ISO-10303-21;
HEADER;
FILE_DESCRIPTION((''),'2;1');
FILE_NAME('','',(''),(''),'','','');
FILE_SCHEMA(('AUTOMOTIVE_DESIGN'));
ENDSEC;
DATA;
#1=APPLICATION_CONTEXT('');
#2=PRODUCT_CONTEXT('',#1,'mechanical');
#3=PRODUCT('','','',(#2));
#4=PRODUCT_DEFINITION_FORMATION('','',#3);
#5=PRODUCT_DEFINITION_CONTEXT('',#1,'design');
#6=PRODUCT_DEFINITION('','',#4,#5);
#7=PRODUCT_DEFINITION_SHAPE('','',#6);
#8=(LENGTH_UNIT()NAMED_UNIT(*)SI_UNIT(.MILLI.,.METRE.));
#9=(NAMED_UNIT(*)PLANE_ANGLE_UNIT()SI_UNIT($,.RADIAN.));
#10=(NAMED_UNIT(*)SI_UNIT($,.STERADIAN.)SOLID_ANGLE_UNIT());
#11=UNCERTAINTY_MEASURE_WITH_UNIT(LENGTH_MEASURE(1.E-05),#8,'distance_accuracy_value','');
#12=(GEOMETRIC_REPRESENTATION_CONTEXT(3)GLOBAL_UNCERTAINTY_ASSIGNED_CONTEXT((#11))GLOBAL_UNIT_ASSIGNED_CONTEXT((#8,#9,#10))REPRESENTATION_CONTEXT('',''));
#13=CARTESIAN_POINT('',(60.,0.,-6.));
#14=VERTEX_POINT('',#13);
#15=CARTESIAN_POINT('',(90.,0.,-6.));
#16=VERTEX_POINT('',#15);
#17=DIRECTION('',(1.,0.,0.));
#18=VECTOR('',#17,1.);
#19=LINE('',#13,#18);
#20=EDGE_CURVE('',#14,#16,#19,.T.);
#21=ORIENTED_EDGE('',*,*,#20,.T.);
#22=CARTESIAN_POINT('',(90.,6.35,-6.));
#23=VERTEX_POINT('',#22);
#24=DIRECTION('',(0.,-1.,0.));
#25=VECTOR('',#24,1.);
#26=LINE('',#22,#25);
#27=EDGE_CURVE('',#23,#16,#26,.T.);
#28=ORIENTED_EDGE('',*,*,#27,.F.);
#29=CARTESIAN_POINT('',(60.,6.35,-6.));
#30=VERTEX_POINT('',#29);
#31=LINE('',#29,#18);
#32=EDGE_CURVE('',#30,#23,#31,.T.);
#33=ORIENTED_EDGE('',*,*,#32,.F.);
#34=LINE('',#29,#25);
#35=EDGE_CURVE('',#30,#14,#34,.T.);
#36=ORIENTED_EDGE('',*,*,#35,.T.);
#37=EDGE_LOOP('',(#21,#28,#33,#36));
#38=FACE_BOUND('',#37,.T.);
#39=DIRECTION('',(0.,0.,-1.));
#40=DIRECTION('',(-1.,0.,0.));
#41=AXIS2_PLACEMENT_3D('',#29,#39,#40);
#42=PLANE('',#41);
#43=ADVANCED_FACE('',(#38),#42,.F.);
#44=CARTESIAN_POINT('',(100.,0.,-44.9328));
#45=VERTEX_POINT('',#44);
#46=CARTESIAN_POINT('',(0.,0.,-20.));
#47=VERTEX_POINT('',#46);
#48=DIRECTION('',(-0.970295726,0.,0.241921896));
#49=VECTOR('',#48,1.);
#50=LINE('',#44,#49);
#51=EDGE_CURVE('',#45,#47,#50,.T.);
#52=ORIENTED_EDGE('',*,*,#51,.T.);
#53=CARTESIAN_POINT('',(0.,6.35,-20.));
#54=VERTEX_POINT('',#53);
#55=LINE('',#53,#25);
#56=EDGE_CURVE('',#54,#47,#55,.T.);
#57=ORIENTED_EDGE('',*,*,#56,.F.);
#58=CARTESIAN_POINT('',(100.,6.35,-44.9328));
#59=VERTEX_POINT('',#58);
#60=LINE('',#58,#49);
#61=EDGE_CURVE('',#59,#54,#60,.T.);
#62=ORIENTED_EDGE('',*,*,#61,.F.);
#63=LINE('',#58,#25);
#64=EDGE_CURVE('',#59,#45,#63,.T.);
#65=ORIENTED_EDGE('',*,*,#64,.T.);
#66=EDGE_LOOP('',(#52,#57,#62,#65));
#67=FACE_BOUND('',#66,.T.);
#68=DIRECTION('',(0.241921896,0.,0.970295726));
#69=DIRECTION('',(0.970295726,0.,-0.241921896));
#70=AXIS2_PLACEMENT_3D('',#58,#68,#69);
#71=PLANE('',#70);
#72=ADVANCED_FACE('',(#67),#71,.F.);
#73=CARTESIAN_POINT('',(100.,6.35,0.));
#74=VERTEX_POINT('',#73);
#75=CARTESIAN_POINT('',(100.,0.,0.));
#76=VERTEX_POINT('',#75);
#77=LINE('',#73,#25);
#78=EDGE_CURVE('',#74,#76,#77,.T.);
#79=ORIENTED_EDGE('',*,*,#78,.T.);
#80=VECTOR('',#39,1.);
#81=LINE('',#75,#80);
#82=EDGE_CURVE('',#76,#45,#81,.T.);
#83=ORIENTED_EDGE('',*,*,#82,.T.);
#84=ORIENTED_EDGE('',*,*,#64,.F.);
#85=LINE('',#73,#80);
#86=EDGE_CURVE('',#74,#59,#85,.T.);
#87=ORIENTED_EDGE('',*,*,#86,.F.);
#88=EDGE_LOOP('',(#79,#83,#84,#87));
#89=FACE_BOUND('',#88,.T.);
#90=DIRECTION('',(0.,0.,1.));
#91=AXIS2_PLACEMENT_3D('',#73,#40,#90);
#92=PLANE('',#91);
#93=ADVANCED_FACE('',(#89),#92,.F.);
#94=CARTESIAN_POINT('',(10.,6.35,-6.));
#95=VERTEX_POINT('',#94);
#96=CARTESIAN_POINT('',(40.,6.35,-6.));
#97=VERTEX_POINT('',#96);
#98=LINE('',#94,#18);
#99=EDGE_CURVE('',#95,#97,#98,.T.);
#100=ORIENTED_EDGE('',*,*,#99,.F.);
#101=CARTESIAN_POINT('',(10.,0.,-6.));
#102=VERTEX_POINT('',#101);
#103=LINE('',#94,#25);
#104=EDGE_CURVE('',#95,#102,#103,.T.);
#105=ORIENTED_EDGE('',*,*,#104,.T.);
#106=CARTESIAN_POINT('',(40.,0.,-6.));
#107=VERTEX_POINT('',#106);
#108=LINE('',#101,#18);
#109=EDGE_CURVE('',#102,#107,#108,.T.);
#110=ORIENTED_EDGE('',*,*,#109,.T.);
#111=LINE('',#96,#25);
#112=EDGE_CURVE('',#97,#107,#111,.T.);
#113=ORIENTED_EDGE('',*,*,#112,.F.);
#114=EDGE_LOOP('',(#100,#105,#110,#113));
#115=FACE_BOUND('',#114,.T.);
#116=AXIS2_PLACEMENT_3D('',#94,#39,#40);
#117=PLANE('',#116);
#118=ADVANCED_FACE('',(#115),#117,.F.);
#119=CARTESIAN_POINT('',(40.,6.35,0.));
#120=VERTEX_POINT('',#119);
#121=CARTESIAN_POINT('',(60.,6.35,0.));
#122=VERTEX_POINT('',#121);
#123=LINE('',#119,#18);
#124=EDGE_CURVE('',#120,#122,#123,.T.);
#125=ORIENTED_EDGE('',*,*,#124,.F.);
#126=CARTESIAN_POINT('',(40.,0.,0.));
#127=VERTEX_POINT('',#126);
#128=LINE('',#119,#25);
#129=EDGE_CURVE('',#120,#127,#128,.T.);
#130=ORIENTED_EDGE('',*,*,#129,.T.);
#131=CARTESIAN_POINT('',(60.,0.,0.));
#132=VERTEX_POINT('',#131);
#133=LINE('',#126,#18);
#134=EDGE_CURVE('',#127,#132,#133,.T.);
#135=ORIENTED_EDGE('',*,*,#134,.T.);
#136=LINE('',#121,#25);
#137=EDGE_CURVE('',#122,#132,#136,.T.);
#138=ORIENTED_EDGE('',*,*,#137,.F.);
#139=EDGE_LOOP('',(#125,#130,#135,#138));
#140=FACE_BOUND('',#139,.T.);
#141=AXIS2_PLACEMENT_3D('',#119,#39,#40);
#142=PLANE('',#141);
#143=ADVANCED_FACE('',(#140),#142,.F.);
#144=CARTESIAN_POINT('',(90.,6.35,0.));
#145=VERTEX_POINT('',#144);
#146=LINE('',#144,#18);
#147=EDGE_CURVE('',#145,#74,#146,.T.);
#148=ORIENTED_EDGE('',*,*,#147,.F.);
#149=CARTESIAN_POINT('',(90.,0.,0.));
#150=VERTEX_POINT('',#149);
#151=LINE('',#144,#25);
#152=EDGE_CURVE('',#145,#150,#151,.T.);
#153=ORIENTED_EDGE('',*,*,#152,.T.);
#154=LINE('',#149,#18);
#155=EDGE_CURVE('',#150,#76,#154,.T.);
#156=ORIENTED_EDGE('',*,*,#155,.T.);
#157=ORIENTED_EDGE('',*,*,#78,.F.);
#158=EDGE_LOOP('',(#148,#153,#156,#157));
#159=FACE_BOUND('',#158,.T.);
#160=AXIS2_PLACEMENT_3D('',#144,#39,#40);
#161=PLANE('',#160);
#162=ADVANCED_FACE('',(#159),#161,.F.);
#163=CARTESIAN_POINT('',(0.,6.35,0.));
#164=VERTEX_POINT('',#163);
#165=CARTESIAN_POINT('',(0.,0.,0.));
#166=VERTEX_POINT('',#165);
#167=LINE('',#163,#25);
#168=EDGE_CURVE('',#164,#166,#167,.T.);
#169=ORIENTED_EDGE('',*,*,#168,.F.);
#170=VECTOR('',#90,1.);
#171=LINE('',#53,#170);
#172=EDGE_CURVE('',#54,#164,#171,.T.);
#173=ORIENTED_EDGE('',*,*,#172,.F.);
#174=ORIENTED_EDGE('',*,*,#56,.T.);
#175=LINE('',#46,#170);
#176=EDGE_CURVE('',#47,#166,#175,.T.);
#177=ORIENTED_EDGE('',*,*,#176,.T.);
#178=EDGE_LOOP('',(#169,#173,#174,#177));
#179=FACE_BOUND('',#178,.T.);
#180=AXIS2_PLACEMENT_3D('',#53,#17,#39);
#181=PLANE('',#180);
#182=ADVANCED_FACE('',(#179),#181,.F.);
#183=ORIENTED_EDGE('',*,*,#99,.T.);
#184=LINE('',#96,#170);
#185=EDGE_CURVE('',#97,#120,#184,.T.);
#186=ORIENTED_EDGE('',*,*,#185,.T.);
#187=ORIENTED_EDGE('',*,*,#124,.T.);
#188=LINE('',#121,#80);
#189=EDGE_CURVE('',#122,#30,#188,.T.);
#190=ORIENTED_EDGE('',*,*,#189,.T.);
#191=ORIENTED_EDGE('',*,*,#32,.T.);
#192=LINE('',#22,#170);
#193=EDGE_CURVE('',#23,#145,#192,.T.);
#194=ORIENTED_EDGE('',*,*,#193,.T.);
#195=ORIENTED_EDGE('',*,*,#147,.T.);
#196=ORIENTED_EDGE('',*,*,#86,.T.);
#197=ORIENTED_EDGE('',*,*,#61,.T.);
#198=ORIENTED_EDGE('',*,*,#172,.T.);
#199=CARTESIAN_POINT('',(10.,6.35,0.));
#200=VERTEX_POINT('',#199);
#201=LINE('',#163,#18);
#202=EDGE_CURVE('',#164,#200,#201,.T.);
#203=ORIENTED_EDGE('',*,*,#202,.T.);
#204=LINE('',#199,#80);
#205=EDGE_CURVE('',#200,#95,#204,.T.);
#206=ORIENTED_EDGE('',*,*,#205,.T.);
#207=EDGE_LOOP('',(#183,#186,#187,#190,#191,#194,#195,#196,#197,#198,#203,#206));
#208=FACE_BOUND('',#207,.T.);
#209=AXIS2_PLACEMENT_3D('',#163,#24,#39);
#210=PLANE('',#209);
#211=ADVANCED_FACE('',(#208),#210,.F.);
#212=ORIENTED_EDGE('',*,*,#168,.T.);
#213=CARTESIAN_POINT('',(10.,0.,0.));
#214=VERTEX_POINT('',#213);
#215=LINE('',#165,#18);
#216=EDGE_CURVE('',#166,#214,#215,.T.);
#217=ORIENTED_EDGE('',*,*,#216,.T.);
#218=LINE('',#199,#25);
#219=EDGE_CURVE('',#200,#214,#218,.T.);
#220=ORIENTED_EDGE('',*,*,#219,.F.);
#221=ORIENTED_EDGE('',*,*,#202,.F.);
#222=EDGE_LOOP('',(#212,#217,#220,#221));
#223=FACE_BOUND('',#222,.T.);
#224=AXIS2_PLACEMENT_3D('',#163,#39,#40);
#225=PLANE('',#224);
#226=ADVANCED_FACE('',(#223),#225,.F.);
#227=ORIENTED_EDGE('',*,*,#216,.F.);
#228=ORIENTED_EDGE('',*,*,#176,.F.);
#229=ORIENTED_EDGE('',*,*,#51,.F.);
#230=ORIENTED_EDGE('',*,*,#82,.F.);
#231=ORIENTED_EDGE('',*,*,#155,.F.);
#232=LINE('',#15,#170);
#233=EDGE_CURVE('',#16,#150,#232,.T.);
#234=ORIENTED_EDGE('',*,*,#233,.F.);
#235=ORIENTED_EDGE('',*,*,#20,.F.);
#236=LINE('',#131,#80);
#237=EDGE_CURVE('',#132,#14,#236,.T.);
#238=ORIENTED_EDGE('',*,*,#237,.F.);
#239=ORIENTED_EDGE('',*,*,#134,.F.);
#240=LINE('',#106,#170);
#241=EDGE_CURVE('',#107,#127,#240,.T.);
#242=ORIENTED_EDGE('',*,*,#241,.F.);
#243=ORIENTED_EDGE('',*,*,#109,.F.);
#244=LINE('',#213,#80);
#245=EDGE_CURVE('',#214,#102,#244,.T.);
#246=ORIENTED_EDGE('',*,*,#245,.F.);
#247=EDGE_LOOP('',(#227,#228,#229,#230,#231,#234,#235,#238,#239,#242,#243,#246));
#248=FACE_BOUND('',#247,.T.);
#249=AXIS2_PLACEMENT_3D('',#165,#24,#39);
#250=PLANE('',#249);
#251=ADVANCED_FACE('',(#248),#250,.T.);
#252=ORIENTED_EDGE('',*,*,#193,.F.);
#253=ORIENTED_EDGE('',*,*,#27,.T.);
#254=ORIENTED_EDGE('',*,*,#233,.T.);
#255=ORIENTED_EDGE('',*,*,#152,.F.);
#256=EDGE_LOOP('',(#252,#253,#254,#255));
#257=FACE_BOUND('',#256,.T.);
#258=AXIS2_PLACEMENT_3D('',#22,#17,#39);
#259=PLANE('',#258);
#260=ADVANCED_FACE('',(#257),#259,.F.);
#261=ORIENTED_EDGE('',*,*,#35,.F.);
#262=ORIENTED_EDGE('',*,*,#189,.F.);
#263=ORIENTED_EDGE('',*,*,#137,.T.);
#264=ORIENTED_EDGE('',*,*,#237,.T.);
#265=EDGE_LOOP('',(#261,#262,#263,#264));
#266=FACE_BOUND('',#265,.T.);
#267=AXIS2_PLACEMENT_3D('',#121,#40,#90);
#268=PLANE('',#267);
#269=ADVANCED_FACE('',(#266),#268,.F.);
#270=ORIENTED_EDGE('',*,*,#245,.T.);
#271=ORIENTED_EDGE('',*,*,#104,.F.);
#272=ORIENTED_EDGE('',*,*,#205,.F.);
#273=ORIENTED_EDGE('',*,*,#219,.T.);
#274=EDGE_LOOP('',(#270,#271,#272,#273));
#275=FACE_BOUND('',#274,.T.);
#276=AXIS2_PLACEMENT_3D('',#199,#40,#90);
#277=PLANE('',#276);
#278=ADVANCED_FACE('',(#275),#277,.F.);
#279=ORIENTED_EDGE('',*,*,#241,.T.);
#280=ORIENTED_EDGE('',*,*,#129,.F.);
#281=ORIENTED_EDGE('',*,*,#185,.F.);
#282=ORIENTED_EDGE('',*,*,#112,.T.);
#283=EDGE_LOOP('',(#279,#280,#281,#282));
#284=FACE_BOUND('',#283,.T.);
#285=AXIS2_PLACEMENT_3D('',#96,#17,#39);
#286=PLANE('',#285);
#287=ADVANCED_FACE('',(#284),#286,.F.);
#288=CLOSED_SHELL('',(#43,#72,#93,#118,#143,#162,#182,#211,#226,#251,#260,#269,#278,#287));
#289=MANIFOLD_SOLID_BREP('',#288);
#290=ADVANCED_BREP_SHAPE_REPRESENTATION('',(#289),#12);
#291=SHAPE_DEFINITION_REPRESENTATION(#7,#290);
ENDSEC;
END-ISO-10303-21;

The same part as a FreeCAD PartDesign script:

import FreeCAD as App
import Part
import Sketcher
from FreeCAD import Vector
Q = App.Units.Quantity


def add_polygon(sketch, points):
    """Adds a closed chain of lines whose ends are joined by coincident constraints."""
    first, n = sketch.GeometryCount, len(points)
    for a, b in zip(points, points[1:] + points[:1]):
        sketch.addGeometry(Part.LineSegment(App.Vector(*a, 0), App.Vector(*b, 0)), False)
    for i in range(n):
        sketch.addConstraint(Sketcher.Constraint("Coincident", first + i, 2, first + (i + 1) % n, 1))

doc = App.newDocument("Part")
body = doc.addObject("PartDesign::Body", "Body")

sketch1 = doc.addObject("Sketcher::SketchObject", "Sketch")
body.addObject(sketch1)
sketch1.AttachmentSupport = (doc.XZ_Plane, [""])
sketch1.MapMode = "FlatFace"
add_polygon(sketch1, [(0, 0), (10, 0), (10, -6), (40, -6), (40, 0), (60, 0), (60, -6), (90, -6), (90, 0), (100, 0), (100, -45), (0, -20)])
sketch1.addConstraint(Sketcher.Constraint("Horizontal", 0))
sketch1.addConstraint(Sketcher.Constraint("Vertical", 1))
sketch1.addConstraint(Sketcher.Constraint("Horizontal", 2))
sketch1.addConstraint(Sketcher.Constraint("Vertical", 3))
sketch1.addConstraint(Sketcher.Constraint("Horizontal", 4))
sketch1.addConstraint(Sketcher.Constraint("Vertical", 5))
sketch1.addConstraint(Sketcher.Constraint("Horizontal", 6))
sketch1.addConstraint(Sketcher.Constraint("Vertical", 7))
sketch1.addConstraint(Sketcher.Constraint("Horizontal", 8))
sketch1.addConstraint(Sketcher.Constraint("Vertical", 9))
sketch1.addConstraint(Sketcher.Constraint("Vertical", 11))
sketch1.addConstraint(Sketcher.Constraint("Coincident", 11, 2, -1, 1))
sketch1.addConstraint(Sketcher.Constraint("PointOnObject", 3, 2, -1))
sketch1.addConstraint(Sketcher.Constraint("PointOnObject", 7, 2, -1))
sketch1.addConstraint(Sketcher.Constraint("Horizontal", 2, 2, 5, 2))
sketch1.addConstraint(Sketcher.Constraint("Equal", 2, 6))
sketch1.addConstraint(Sketcher.Constraint("Equal", 0, 8))
sketch1.addConstraint(Sketcher.Constraint("Equal", 4, 11))
sketch1.addConstraint(Sketcher.Constraint("DistanceX", 0, 1, 0, 2, 10.0))
sketch1.addConstraint(Sketcher.Constraint("DistanceX", 2, 1, 2, 2, 30.0))
sketch1.addConstraint(Sketcher.Constraint("DistanceX", 4, 1, 4, 2, 20.0))
sketch1.addConstraint(Sketcher.Constraint("DistanceY", 1, 2, 1, 1, 6.0))
sketch1.addConstraint(Sketcher.Constraint("Angle", 10, Q("166 deg")))
pad1 = doc.addObject("PartDesign::Pad", "Pad")
body.addObject(pad1)
pad1.Profile = sketch1
pad1.Length = 6.35
pad1.Reversed = True

doc.recompute()
